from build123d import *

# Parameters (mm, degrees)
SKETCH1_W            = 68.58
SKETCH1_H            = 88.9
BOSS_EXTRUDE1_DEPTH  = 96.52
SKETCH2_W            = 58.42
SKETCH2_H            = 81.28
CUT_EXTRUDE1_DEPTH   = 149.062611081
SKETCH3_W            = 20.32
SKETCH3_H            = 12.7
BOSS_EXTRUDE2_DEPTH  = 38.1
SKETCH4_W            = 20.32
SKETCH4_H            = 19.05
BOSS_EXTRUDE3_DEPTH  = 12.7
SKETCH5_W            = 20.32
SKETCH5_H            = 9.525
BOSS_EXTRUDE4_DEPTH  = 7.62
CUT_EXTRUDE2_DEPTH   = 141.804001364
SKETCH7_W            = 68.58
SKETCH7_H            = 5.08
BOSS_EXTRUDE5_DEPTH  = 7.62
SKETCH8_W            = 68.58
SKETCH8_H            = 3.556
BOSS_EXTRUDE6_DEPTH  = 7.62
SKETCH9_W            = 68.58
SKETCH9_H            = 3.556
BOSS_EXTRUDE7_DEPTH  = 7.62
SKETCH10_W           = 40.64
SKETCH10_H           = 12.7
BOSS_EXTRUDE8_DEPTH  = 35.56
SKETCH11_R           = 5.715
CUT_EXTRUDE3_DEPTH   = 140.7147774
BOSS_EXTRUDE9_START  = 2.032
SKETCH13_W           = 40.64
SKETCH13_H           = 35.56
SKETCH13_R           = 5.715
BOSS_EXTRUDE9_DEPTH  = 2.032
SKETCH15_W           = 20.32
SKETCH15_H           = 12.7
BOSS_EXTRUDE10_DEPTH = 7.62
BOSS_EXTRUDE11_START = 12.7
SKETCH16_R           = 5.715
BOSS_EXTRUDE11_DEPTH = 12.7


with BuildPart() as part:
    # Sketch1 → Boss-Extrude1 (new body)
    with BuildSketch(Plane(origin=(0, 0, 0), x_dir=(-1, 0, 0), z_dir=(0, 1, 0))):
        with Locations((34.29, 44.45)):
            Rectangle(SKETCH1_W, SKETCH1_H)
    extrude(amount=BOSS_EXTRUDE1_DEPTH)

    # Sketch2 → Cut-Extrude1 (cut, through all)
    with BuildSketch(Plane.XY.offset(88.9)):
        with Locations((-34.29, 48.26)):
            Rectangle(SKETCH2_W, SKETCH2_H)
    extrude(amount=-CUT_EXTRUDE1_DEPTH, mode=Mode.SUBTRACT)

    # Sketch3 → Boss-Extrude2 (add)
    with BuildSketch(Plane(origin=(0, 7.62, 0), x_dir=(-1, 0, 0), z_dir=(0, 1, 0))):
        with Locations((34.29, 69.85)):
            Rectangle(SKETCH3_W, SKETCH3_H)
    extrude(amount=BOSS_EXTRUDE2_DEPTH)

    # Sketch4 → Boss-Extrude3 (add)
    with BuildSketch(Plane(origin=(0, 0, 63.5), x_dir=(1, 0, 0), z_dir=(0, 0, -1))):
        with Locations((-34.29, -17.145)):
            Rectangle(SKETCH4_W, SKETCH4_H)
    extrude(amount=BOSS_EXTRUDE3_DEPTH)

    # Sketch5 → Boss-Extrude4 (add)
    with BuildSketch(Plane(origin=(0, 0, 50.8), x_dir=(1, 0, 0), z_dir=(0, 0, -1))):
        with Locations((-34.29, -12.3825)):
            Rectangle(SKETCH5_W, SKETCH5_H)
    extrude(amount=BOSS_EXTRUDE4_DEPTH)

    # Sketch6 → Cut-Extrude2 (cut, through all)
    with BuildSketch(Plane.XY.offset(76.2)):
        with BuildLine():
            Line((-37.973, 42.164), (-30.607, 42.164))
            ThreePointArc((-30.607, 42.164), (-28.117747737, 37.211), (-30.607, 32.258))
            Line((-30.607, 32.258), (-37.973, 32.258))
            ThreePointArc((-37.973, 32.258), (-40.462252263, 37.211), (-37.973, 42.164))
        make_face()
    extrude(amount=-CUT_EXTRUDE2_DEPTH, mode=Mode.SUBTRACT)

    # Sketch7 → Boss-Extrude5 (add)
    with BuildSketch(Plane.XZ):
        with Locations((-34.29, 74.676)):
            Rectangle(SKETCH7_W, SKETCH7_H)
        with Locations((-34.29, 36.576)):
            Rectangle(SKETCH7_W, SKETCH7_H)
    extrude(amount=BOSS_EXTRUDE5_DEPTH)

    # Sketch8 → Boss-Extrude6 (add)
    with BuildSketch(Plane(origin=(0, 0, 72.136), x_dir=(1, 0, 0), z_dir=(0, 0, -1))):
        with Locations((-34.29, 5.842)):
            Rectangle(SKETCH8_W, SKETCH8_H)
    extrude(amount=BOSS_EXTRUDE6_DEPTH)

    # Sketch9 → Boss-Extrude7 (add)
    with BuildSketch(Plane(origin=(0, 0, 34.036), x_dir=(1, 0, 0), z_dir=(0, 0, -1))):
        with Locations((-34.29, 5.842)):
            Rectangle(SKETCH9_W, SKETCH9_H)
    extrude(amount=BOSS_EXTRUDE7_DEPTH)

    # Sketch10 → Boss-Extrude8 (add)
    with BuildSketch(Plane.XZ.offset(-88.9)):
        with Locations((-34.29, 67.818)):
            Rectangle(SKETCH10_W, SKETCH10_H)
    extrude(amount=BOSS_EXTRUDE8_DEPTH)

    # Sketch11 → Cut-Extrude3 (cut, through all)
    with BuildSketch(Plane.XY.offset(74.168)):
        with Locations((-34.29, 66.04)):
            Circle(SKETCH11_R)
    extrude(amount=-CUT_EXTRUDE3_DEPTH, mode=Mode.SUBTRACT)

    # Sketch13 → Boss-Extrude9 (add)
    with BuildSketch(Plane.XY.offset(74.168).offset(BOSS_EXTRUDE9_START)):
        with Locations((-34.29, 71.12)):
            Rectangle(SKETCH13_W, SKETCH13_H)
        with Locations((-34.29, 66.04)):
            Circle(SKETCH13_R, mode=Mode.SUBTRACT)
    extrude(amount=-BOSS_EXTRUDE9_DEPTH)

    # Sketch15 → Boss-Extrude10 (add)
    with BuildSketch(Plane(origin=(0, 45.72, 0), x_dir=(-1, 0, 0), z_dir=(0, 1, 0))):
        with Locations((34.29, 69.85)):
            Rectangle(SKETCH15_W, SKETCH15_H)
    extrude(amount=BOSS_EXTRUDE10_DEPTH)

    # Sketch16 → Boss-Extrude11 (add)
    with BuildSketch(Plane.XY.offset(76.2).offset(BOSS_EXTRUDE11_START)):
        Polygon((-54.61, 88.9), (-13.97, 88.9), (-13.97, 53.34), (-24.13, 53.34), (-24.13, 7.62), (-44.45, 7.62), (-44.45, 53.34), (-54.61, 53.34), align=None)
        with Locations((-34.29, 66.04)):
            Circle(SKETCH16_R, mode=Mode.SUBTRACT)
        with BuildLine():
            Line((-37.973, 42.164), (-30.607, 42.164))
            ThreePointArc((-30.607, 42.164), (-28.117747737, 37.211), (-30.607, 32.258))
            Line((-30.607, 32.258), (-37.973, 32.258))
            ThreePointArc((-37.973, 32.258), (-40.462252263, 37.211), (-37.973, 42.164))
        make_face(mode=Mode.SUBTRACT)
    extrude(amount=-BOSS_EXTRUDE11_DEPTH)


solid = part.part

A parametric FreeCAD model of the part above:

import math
import FreeCAD as App
import Part
import Sketcher
from FreeCAD import Vector
Q = App.Units.Quantity

doc = App.newDocument("Part")
body = doc.addObject("PartDesign::Body", "Body")

# Sketch on XZ plane
sketch1 = body.newObject("Sketcher::SketchObject", "Sketch")
sketch1.AttachmentSupport = (doc.getObject("XZ_Plane"), [""])
sketch1.MapMode = "FlatFace"
sketch1.addGeometry(Part.LineSegment(Vector(0, 89, 0), Vector(0, 0, 0)), False)
sketch1.addGeometry(Part.LineSegment(Vector(0, 0, 0), Vector(-69, 0, 0)), False)
sketch1.addGeometry(Part.LineSegment(Vector(-69, 0, 0), Vector(-69, 89, 0)), False)
sketch1.addGeometry(Part.LineSegment(Vector(-69, 89, 0), Vector(0, 89, 0)), False)
sketch1.addConstraint(Sketcher.Constraint("Coincident", 0, 2, 1, 1))
sketch1.addConstraint(Sketcher.Constraint("Coincident", 1, 2, 2, 1))
sketch1.addConstraint(Sketcher.Constraint("Coincident", 2, 2, 3, 1))
sketch1.addConstraint(Sketcher.Constraint("Coincident", 3, 2, 0, 1))
sketch1.addConstraint(Sketcher.Constraint("Vertical", 0))
sketch1.addConstraint(Sketcher.Constraint("Horizontal", 1))
sketch1.addConstraint(Sketcher.Constraint("Vertical", 2))
sketch1.addConstraint(Sketcher.Constraint("Horizontal", 3))
sketch1.addConstraint(Sketcher.Constraint("Coincident", 0, 2, -1, 1))
sketch1.addConstraint(Sketcher.Constraint("DistanceX", 1, 2, 1, 1, Q("2.7 in")))
sketch1.addConstraint(Sketcher.Constraint("DistanceY", 0, 2, 0, 1, Q("3.5 in")))
pad1 = body.newObject("PartDesign::Pad", "Pad")
pad1.Profile = sketch1
pad1.Length = Q("3.8 in")
pad1.Reversed = True

# Sketch on XY plane
sketch2 = body.newObject("Sketcher::SketchObject", "Sketch001")
sketch2.AttachmentSupport = (doc.getObject("XY_Plane"), [""])
sketch2.MapMode = "FlatFace"
sketch2.AttachmentOffset = App.Placement(Vector(0, 0, 3.5 * 25.4), App.Rotation())
sketch2.addGeometry(Part.LineSegment(Vector(-64, 89, 0), Vector(-64, 8, 0)), False)
sketch2.addGeometry(Part.LineSegment(Vector(-64, 8, 0), Vector(-5, 8, 0)), False)
sketch2.addGeometry(Part.LineSegment(Vector(-5, 8, 0), Vector(-5, 89, 0)), False)
sketch2.addGeometry(Part.LineSegment(Vector(-5, 89, 0), Vector(-64, 89, 0)), False)
sketch2.addConstraint(Sketcher.Constraint("Coincident", 0, 2, 1, 1))
sketch2.addConstraint(Sketcher.Constraint("Coincident", 1, 2, 2, 1))
sketch2.addConstraint(Sketcher.Constraint("Coincident", 2, 2, 3, 1))
sketch2.addConstraint(Sketcher.Constraint("Coincident", 3, 2, 0, 1))
sketch2.addConstraint(Sketcher.Constraint("Vertical", 0))
sketch2.addConstraint(Sketcher.Constraint("Horizontal", 1))
sketch2.addConstraint(Sketcher.Constraint("Vertical", 2))
sketch2.addConstraint(Sketcher.Constraint("Horizontal", 3))
sketch2.addConstraint(Sketcher.Constraint("DistanceX", 1, 1, 1, 2, Q("2.3 in")))
sketch2.addConstraint(Sketcher.Constraint("DistanceY", 0, 2, 0, 1, Q("3.2 in")))
sketch2.addConstraint(Sketcher.Constraint("DistanceX", 0, 2, -1, 1, Q("2.5 in")))
sketch2.addConstraint(Sketcher.Constraint("DistanceY", -1, 1, 0, 2, Q("0.3 in")))
pocket1 = body.newObject("PartDesign::Pocket", "Pocket")
pocket1.Profile = sketch2
pocket1.Type = "ThroughAll"

# Sketch on XZ plane
sketch3 = body.newObject("Sketcher::SketchObject", "Sketch002")
sketch3.AttachmentSupport = (doc.getObject("XZ_Plane"), [""])
sketch3.MapMode = "FlatFace"
sketch3.AttachmentOffset = App.Placement(Vector(0, 0, -0.3 * 25.4), App.Rotation())
sketch3.addGeometry(Part.LineSegment(Vector(-24, 76, 0), Vector(-24, 64, 0)), False)
sketch3.addGeometry(Part.LineSegment(Vector(-24, 64, 0), Vector(-44, 64, 0)), False)
sketch3.addGeometry(Part.LineSegment(Vector(-44, 64, 0), Vector(-44, 76, 0)), False)
sketch3.addGeometry(Part.LineSegment(Vector(-44, 76, 0), Vector(-24, 76, 0)), False)
sketch3.addConstraint(Sketcher.Constraint("Coincident", 0, 2, 1, 1))
sketch3.addConstraint(Sketcher.Constraint("Coincident", 1, 2, 2, 1))
sketch3.addConstraint(Sketcher.Constraint("Coincident", 2, 2, 3, 1))
sketch3.addConstraint(Sketcher.Constraint("Coincident", 3, 2, 0, 1))
sketch3.addConstraint(Sketcher.Constraint("Vertical", 0))
sketch3.addConstraint(Sketcher.Constraint("Horizontal", 1))
sketch3.addConstraint(Sketcher.Constraint("Vertical", 2))
sketch3.addConstraint(Sketcher.Constraint("Horizontal", 3))
sketch3.addConstraint(Sketcher.Constraint("DistanceX", 1, 2, 1, 1, Q("0.8 in")))
sketch3.addConstraint(Sketcher.Constraint("DistanceY", 0, 2, 0, 1, Q("0.5 in")))
sketch3.addConstraint(Sketcher.Constraint("DistanceY", -1, 1, 2, 2, Q("3 in")))
sketch3.addConstraint(Sketcher.Constraint("DistanceX", 0, 2, -1, 1, Q("0.95 in")))
pad2 = body.newObject("PartDesign::Pad", "Pad001")
pad2.Profile = sketch3
pad2.Length = Q("1.5 in")
pad2.Reversed = True

# Sketch on XY plane
sketch4 = body.newObject("Sketcher::SketchObject", "Sketch003")
sketch4.AttachmentSupport = (doc.getObject("XY_Plane"), [""])
sketch4.MapMode = "FlatFace"
sketch4.AttachmentOffset = App.Placement(Vector(0, 0, 2.5 * 25.4), App.Rotation())
sketch4.addGeometry(Part.LineSegment(Vector(-44, 8, 0), Vector(-44, 27, 0)), False)
sketch4.addGeometry(Part.LineSegment(Vector(-44, 27, 0), Vector(-24, 27, 0)), False)
sketch4.addGeometry(Part.LineSegment(Vector(-24, 27, 0), Vector(-24, 8, 0)), False)
sketch4.addGeometry(Part.LineSegment(Vector(-24, 8, 0), Vector(-44, 8, 0)), False)
sketch4.addConstraint(Sketcher.Constraint("Coincident", 0, 2, 1, 1))
sketch4.addConstraint(Sketcher.Constraint("Coincident", 1, 2, 2, 1))
sketch4.addConstraint(Sketcher.Constraint("Coincident", 2, 2, 3, 1))
sketch4.addConstraint(Sketcher.Constraint("Coincident", 3, 2, 0, 1))
sketch4.addConstraint(Sketcher.Constraint("Vertical", 0))
sketch4.addConstraint(Sketcher.Constraint("Horizontal", 1))
sketch4.addConstraint(Sketcher.Constraint("Vertical", 2))
sketch4.addConstraint(Sketcher.Constraint("Horizontal", 3))
sketch4.addConstraint(Sketcher.Constraint("DistanceX", 1, 1, 1, 2, Q("0.8 in")))
sketch4.addConstraint(Sketcher.Constraint("DistanceY", 0, 1, 0, 2, Q("0.75 in")))
sketch4.addConstraint(Sketcher.Constraint("DistanceY", -1, 1, 2, 2, Q("0.3 in")))
sketch4.addConstraint(Sketcher.Constraint("DistanceX", 0, 2, -1, 1, Q("1.75 in")))
pad3 = body.newObject("PartDesign::Pad", "Pad002")
pad3.Profile = sketch4
pad3.Length = Q("0.5 in")
pad3.Reversed = True

# Sketch on XY plane
sketch5 = body.newObject("Sketcher::SketchObject", "Sketch004")
sketch5.AttachmentSupport = (doc.getObject("XY_Plane"), [""])
sketch5.MapMode = "FlatFace"
sketch5.AttachmentOffset = App.Placement(Vector(0, 0, 2 * 25.4), App.Rotation())
sketch5.addGeometry(Part.LineSegment(Vector(-44, 8, 0), Vector(-44, 17, 0)), False)
sketch5.addGeometry(Part.LineSegment(Vector(-44, 17, 0), Vector(-24, 17, 0)), False)
sketch5.addGeometry(Part.LineSegment(Vector(-24, 17, 0), Vector(-24, 8, 0)), False)
sketch5.addGeometry(Part.LineSegment(Vector(-24, 8, 0), Vector(-44, 8, 0)), False)
sketch5.addConstraint(Sketcher.Constraint("Coincident", 0, 2, 1, 1))
sketch5.addConstraint(Sketcher.Constraint("Coincident", 1, 2, 2, 1))
sketch5.addConstraint(Sketcher.Constraint("Coincident", 2, 2, 3, 1))
sketch5.addConstraint(Sketcher.Constraint("Coincident", 3, 2, 0, 1))
sketch5.addConstraint(Sketcher.Constraint("Vertical", 0))
sketch5.addConstraint(Sketcher.Constraint("Horizontal", 1))
sketch5.addConstraint(Sketcher.Constraint("Vertical", 2))
sketch5.addConstraint(Sketcher.Constraint("Horizontal", 3))
sketch5.addConstraint(Sketcher.Constraint("DistanceX", 1, 1, 1, 2, Q("0.8 in")))
sketch5.addConstraint(Sketcher.Constraint("DistanceY", -1, 1, 2, 2, Q("0.3 in")))
sketch5.addConstraint(Sketcher.Constraint("DistanceY", 0, 1, 0, 2, Q("0.375 in")))
sketch5.addConstraint(Sketcher.Constraint("DistanceX", 0, 2, -1, 1, Q("1.75 in")))
pad4 = body.newObject("PartDesign::Pad", "Pad003")
pad4.Profile = sketch5
pad4.Length = Q("0.3 in")
pad4.Reversed = True

# Sketch on XY plane
sketch6 = body.newObject("Sketcher::SketchObject", "Sketch005")
sketch6.AttachmentSupport = (doc.getObject("XY_Plane"), [""])
sketch6.MapMode = "FlatFace"
sketch6.AttachmentOffset = App.Placement(Vector(0, 0, 3 * 25.4), App.Rotation())
sketch6.addGeometry(Part.LineSegment(Vector(-31, 42, 0), Vector(-38, 42, 0)), False)
sketch6.addGeometry(Part.ArcOfCircle(Part.Circle(Vector(-34, 37, 0), Vector(0, 0, 1), 6), math.radians(127), math.radians(233)), False)
sketch6.addGeometry(Part.LineSegment(Vector(-38, 32, 0), Vector(-31, 32, 0)), False)
sketch6.addGeometry(Part.ArcOfCircle(Part.Circle(Vector(-34, 37, 0), Vector(0, 0, 1), 6), math.radians(-53), math.radians(53)), False)
sketch6.addConstraint(Sketcher.Constraint("Coincident", 0, 2, 1, 1))
sketch6.addConstraint(Sketcher.Constraint("Coincident", 1, 2, 2, 1))
sketch6.addConstraint(Sketcher.Constraint("Coincident", 2, 2, 3, 1))
sketch6.addConstraint(Sketcher.Constraint("Coincident", 3, 2, 0, 1))
sketch6.addConstraint(Sketcher.Constraint("Horizontal", 0))
sketch6.addConstraint(Sketcher.Constraint("Horizontal", 2))
sketch6.addConstraint(Sketcher.Constraint("Coincident", 3, 3, 1, 3))
sketch6.addConstraint(Sketcher.Constraint("Equal", 1, 3))
sketch6.addConstraint(Sketcher.Constraint("Vertical", 0, 2, 1, 2))
sketch6.addConstraint(Sketcher.Constraint("DistanceX", 0, 2, 0, 1, Q("0.29 in")))
sketch6.addConstraint(Sketcher.Constraint("DistanceX", 1, 3, -1, 1, Q("1.35 in")))
sketch6.addConstraint(Sketcher.Constraint("DistanceY", -1, 1, 0, 2, Q("1.66 in")))
sketch6.addConstraint(Sketcher.Constraint("DistanceY", -1, 1, 1, 2, Q("1.27 in")))
pocket2 = body.newObject("PartDesign::Pocket", "Pocket001")
pocket2.Profile = sketch6
pocket2.Type = "ThroughAll"

# Sketch on XZ plane
sketch7 = body.newObject("Sketcher::SketchObject", "Sketch006")
sketch7.AttachmentSupport = (doc.getObject("XZ_Plane"), [""])
sketch7.MapMode = "FlatFace"
sketch7.addGeometry(Part.LineSegment(Vector(-69, 77, 0), Vector(-69, 72, 0)), False)
sketch7.addGeometry(Part.LineSegment(Vector(-69, 72, 0), Vector(0, 72, 0)), False)
sketch7.addGeometry(Part.LineSegment(Vector(0, 72, 0), Vector(0, 77, 0)), False)
sketch7.addGeometry(Part.LineSegment(Vector(0, 77, 0), Vector(-69, 77, 0)), False)
sketch7.addGeometry(Part.LineSegment(Vector(-69, 39, 0), Vector(-69, 34, 0)), False)
sketch7.addGeometry(Part.LineSegment(Vector(-69, 34, 0), Vector(0, 34, 0)), False)
sketch7.addGeometry(Part.LineSegment(Vector(0, 34, 0), Vector(0, 39, 0)), False)
sketch7.addGeometry(Part.LineSegment(Vector(0, 39, 0), Vector(-69, 39, 0)), False)
sketch7.addConstraint(Sketcher.Constraint("Coincident", 0, 2, 1, 1))
sketch7.addConstraint(Sketcher.Constraint("Coincident", 1, 2, 2, 1))
sketch7.addConstraint(Sketcher.Constraint("Coincident", 2, 2, 3, 1))
sketch7.addConstraint(Sketcher.Constraint("Coincident", 3, 2, 0, 1))
sketch7.addConstraint(Sketcher.Constraint("Coincident", 4, 2, 5, 1))
sketch7.addConstraint(Sketcher.Constraint("Coincident", 5, 2, 6, 1))
sketch7.addConstraint(Sketcher.Constraint("Coincident", 6, 2, 7, 1))
sketch7.addConstraint(Sketcher.Constraint("Coincident", 7, 2, 4, 1))
sketch7.addConstraint(Sketcher.Constraint("Vertical", 0))
sketch7.addConstraint(Sketcher.Constraint("Horizontal", 1))
sketch7.addConstraint(Sketcher.Constraint("Vertical", 2))
sketch7.addConstraint(Sketcher.Constraint("Horizontal", 3))
sketch7.addConstraint(Sketcher.Constraint("Vertical", 4))
sketch7.addConstraint(Sketcher.Constraint("Horizontal", 5))
sketch7.addConstraint(Sketcher.Constraint("Vertical", 6))
sketch7.addConstraint(Sketcher.Constraint("Horizontal", 7))
sketch7.addConstraint(Sketcher.Constraint("PointOnObject", 1, 2, -2))
sketch7.addConstraint(Sketcher.Constraint("PointOnObject", 5, 2, -2))
sketch7.addConstraint(Sketcher.Constraint("Vertical", 3, 2, 4, 2))
sketch7.addConstraint(Sketcher.Constraint("Equal", 2, 4))
sketch7.addConstraint(Sketcher.Constraint("DistanceX", 1, 1, 1, 2, Q("2.7 in")))
sketch7.addConstraint(Sketcher.Constraint("DistanceY", 0, 2, 0, 1, Q("0.2 in")))
sketch7.addConstraint(Sketcher.Constraint("DistanceY", 4, 2, 0, 2, Q("1.5 in")))
sketch7.addConstraint(Sketcher.Constraint("DistanceY", -1, 1, 0, 2, Q("2.84 in")))
pad5 = body.newObject("PartDesign::Pad", "Pad004")
pad5.Profile = sketch7
pad5.Length = Q("0.3 in")

# Sketch on XY plane
sketch8 = body.newObject("Sketcher::SketchObject", "Sketch007")
sketch8.AttachmentSupport = (doc.getObject("XY_Plane"), [""])
sketch8.MapMode = "FlatFace"
sketch8.AttachmentOffset = App.Placement(Vector(0, 0, 2.84 * 25.4), App.Rotation())
sketch8.addGeometry(Part.LineSegment(Vector(-68.6, -7.6, 0), Vector(-68.6, -4.1, 0)), False)
sketch8.addGeometry(Part.LineSegment(Vector(-68.6, -4.1, 0), Vector(0, -4.1, 0)), False)
sketch8.addGeometry(Part.LineSegment(Vector(0, -4.1, 0), Vector(0, -7.6, 0)), False)
sketch8.addGeometry(Part.LineSegment(Vector(0, -7.6, 0), Vector(-68.6, -7.6, 0)), False)
sketch8.addConstraint(Sketcher.Constraint("Coincident", 0, 2, 1, 1))
sketch8.addConstraint(Sketcher.Constraint("Coincident", 1, 2, 2, 1))
sketch8.addConstraint(Sketcher.Constraint("Coincident", 2, 2, 3, 1))
sketch8.addConstraint(Sketcher.Constraint("Coincident", 3, 2, 0, 1))
sketch8.addConstraint(Sketcher.Constraint("Vertical", 0))
sketch8.addConstraint(Sketcher.Constraint("Horizontal", 1))
sketch8.addConstraint(Sketcher.Constraint("Vertical", 2))
sketch8.addConstraint(Sketcher.Constraint("Horizontal", 3))
sketch8.addConstraint(Sketcher.Constraint("PointOnObject", 1, 2, -2))
sketch8.addConstraint(Sketcher.Constraint("DistanceX", 1, 1, 1, 2, Q("2.7 in")))
sketch8.addConstraint(Sketcher.Constraint("DistanceY", 0, 1, 0, 2, Q("0.14 in")))
sketch8.addConstraint(Sketcher.Constraint("DistanceY", 2, 2, -1, 1, Q("0.3 in")))
pad6 = body.newObject("PartDesign::Pad", "Pad005")
pad6.Profile = sketch8
pad6.Length = Q("0.3 in")
pad6.Reversed = True

# Sketch on XY plane
sketch9 = body.newObject("Sketcher::SketchObject", "Sketch008")
sketch9.AttachmentSupport = (doc.getObject("XY_Plane"), [""])
sketch9.MapMode = "FlatFace"
sketch9.AttachmentOffset = App.Placement(Vector(0, 0, 1.34 * 25.4), App.Rotation())
sketch9.addGeometry(Part.LineSegment(Vector(-68.6, -7.6, 0), Vector(-68.6, -4.1, 0)), False)
sketch9.addGeometry(Part.LineSegment(Vector(-68.6, -4.1, 0), Vector(0, -4.1, 0)), False)
sketch9.addGeometry(Part.LineSegment(Vector(0, -4.1, 0), Vector(0, -7.6, 0)), False)
sketch9.addGeometry(Part.LineSegment(Vector(0, -7.6, 0), Vector(-68.6, -7.6, 0)), False)
sketch9.addConstraint(Sketcher.Constraint("Coincident", 0, 2, 1, 1))
sketch9.addConstraint(Sketcher.Constraint("Coincident", 1, 2, 2, 1))
sketch9.addConstraint(Sketcher.Constraint("Coincident", 2, 2, 3, 1))
sketch9.addConstraint(Sketcher.Constraint("Coincident", 3, 2, 0, 1))
sketch9.addConstraint(Sketcher.Constraint("Vertical", 0))
sketch9.addConstraint(Sketcher.Constraint("Horizontal", 1))
sketch9.addConstraint(Sketcher.Constraint("Vertical", 2))
sketch9.addConstraint(Sketcher.Constraint("Horizontal", 3))
sketch9.addConstraint(Sketcher.Constraint("PointOnObject", 1, 2, -2))
sketch9.addConstraint(Sketcher.Constraint("DistanceX", 1, 1, 1, 2, Q("2.7 in")))
sketch9.addConstraint(Sketcher.Constraint("DistanceY", 0, 1, 0, 2, Q("0.14 in")))
sketch9.addConstraint(Sketcher.Constraint("DistanceY", 2, 2, -1, 1, Q("0.3 in")))
pad7 = body.newObject("PartDesign::Pad", "Pad006")
pad7.Profile = sketch9
pad7.Length = Q("0.3 in")
pad7.Reversed = True

# Sketch on XZ plane
sketch10 = body.newObject("Sketcher::SketchObject", "Sketch009")
sketch10.AttachmentSupport = (doc.getObject("XZ_Plane"), [""])
sketch10.MapMode = "FlatFace"
sketch10.AttachmentOffset = App.Placement(Vector(0, 0, -3.5 * 25.4), App.Rotation())
sketch10.addGeometry(Part.LineSegment(Vector(-55, 74, 0), Vector(-55, 61, 0)), False)
sketch10.addGeometry(Part.LineSegment(Vector(-55, 61, 0), Vector(-14, 61, 0)), False)
sketch10.addGeometry(Part.LineSegment(Vector(-14, 61, 0), Vector(-14, 74, 0)), False)
sketch10.addGeometry(Part.LineSegment(Vector(-14, 74, 0), Vector(-55, 74, 0)), False)
sketch10.addConstraint(Sketcher.Constraint("Coincident", 0, 2, 1, 1))
sketch10.addConstraint(Sketcher.Constraint("Coincident", 1, 2, 2, 1))
sketch10.addConstraint(Sketcher.Constraint("Coincident", 2, 2, 3, 1))
sketch10.addConstraint(Sketcher.Constraint("Coincident", 3, 2, 0, 1))
sketch10.addConstraint(Sketcher.Constraint("Vertical", 0))
sketch10.addConstraint(Sketcher.Constraint("Horizontal", 1))
sketch10.addConstraint(Sketcher.Constraint("Vertical", 2))
sketch10.addConstraint(Sketcher.Constraint("Horizontal", 3))
sketch10.addConstraint(Sketcher.Constraint("DistanceX", 1, 1, 1, 2, Q("1.6 in")))
sketch10.addConstraint(Sketcher.Constraint("DistanceY", 0, 2, 0, 1, Q("0.5 in")))
sketch10.addConstraint(Sketcher.Constraint("DistanceX", 0, 2, -1, 1, Q("2.15 in")))
sketch10.addConstraint(Sketcher.Constraint("DistanceY", -1, 1, 0, 2, Q("2.42 in")))
pad8 = body.newObject("PartDesign::Pad", "Pad007")
pad8.Profile = sketch10
pad8.Length = Q("1.4 in")

# Sketch on XY plane
sketch11 = body.newObject("Sketcher::SketchObject", "Sketch010")
sketch11.AttachmentSupport = (doc.getObject("XY_Plane"), [""])
sketch11.MapMode = "FlatFace"
sketch11.AttachmentOffset = App.Placement(Vector(0, 0, 2.92 * 25.4), App.Rotation())
sketch11.addGeometry(Part.Circle(Vector(-34, 66, 0), Vector(0, 0, 1), 6), False)
sketch11.addConstraint(Sketcher.Constraint("Diameter", 0, Q("0.45 in")))
sketch11.addConstraint(Sketcher.Constraint("DistanceY", -1, 1, 0, 3, Q("2.6 in")))
sketch11.addConstraint(Sketcher.Constraint("DistanceX", 0, 3, -1, 1, Q("1.35 in")))
pocket3 = body.newObject("PartDesign::Pocket", "Pocket002")
pocket3.Profile = sketch11
pocket3.Type = "ThroughAll"

# Sketch on XY plane
sketch12 = body.newObject("Sketcher::SketchObject", "Sketch011")
sketch12.AttachmentSupport = (doc.getObject("XY_Plane"), [""])
sketch12.MapMode = "FlatFace"
sketch12.AttachmentOffset = App.Placement(Vector(0, 0, 3 * 25.4), App.Rotation())
sketch12.addGeometry(Part.LineSegment(Vector(-55, 89, 0), Vector(-55, 53, 0)), False)
sketch12.addGeometry(Part.LineSegment(Vector(-55, 53, 0), Vector(-14, 53, 0)), False)
sketch12.addGeometry(Part.LineSegment(Vector(-14, 53, 0), Vector(-14, 89, 0)), False)
sketch12.addGeometry(Part.LineSegment(Vector(-14, 89, 0), Vector(-55, 89, 0)), False)
sketch12.addGeometry(Part.Circle(Vector(-34, 66, 0), Vector(0, 0, 1), 6), False)
sketch12.addConstraint(Sketcher.Constraint("Coincident", 0, 2, 1, 1))
sketch12.addConstraint(Sketcher.Constraint("Coincident", 1, 2, 2, 1))
sketch12.addConstraint(Sketcher.Constraint("Coincident", 2, 2, 3, 1))
sketch12.addConstraint(Sketcher.Constraint("Coincident", 3, 2, 0, 1))
sketch12.addConstraint(Sketcher.Constraint("Vertical", 0))
sketch12.addConstraint(Sketcher.Constraint("Horizontal", 1))
sketch12.addConstraint(Sketcher.Constraint("Vertical", 2))
sketch12.addConstraint(Sketcher.Constraint("Horizontal", 3))
sketch12.addConstraint(Sketcher.Constraint("Diameter", 4, Q("0.45 in")))
sketch12.addConstraint(Sketcher.Constraint("DistanceX", 1, 1, 1, 2, Q("1.6 in")))
sketch12.addConstraint(Sketcher.Constraint("DistanceY", 0, 2, 0, 1, Q("1.4 in")))
sketch12.addConstraint(Sketcher.Constraint("DistanceY", -1, 1, 4, 3, Q("2.6 in")))
sketch12.addConstraint(Sketcher.Constraint("DistanceY", -1, 1, 0, 2, Q("2.1 in")))
sketch12.addConstraint(Sketcher.Constraint("DistanceX", 0, 2, 4, 3, Q("0.8 in")))
sketch12.addConstraint(Sketcher.Constraint("DistanceX", 4, 3, -1, 1, Q("1.35 in")))
pad9 = body.newObject("PartDesign::Pad", "Pad008")
pad9.Profile = sketch12
pad9.Length = Q("0.08 in")
pad9.Reversed = True

# Sketch on XZ plane
sketch13 = body.newObject("Sketcher::SketchObject", "Sketch012")
sketch13.AttachmentSupport = (doc.getObject("XZ_Plane"), [""])
sketch13.MapMode = "FlatFace"
sketch13.AttachmentOffset = App.Placement(Vector(0, 0, -1.8 * 25.4), App.Rotation())
sketch13.addGeometry(Part.LineSegment(Vector(-24, 76, 0), Vector(-24, 64, 0)), False)
sketch13.addGeometry(Part.LineSegment(Vector(-24, 64, 0), Vector(-44, 64, 0)), False)
sketch13.addGeometry(Part.LineSegment(Vector(-44, 64, 0), Vector(-44, 76, 0)), False)
sketch13.addGeometry(Part.LineSegment(Vector(-44, 76, 0), Vector(-24, 76, 0)), False)
sketch13.addConstraint(Sketcher.Constraint("Coincident", 0, 2, 1, 1))
sketch13.addConstraint(Sketcher.Constraint("Coincident", 1, 2, 2, 1))
sketch13.addConstraint(Sketcher.Constraint("Coincident", 2, 2, 3, 1))
sketch13.addConstraint(Sketcher.Constraint("Coincident", 3, 2, 0, 1))
sketch13.addConstraint(Sketcher.Constraint("Vertical", 0))
sketch13.addConstraint(Sketcher.Constraint("Horizontal", 1))
sketch13.addConstraint(Sketcher.Constraint("Vertical", 2))
sketch13.addConstraint(Sketcher.Constraint("Horizontal", 3))
sketch13.addConstraint(Sketcher.Constraint("DistanceX", 1, 2, 1, 1, Q("0.8 in")))
sketch13.addConstraint(Sketcher.Constraint("DistanceY", 0, 2, 0, 1, Q("0.5 in")))
sketch13.addConstraint(Sketcher.Constraint("DistanceY", -1, 1, 2, 2, Q("3 in")))
sketch13.addConstraint(Sketcher.Constraint("DistanceX", 0, 2, -1, 1, Q("0.95 in")))
pad10 = body.newObject("PartDesign::Pad", "Pad009")
pad10.Profile = sketch13
pad10.Length = Q("0.3 in")
pad10.Reversed = True

# Sketch on XY plane
sketch14 = body.newObject("Sketcher::SketchObject", "Sketch013")
sketch14.AttachmentSupport = (doc.getObject("XY_Plane"), [""])
sketch14.MapMode = "FlatFace"
sketch14.AttachmentOffset = App.Placement(Vector(0, 0, 3.5 * 25.4), App.Rotation())
sketch14.addGeometry(Part.LineSegment(Vector(-14, 89, 0), Vector(-55, 89, 0)), False)
sketch14.addGeometry(Part.LineSegment(Vector(-55, 89, 0), Vector(-55, 53, 0)), False)
sketch14.addGeometry(Part.LineSegment(Vector(-55, 53, 0), Vector(-44, 53, 0)), False)
sketch14.addGeometry(Part.LineSegment(Vector(-44, 53, 0), Vector(-44, 8, 0)), False)
sketch14.addGeometry(Part.LineSegment(Vector(-44, 8, 0), Vector(-24, 8, 0)), False)
sketch14.addGeometry(Part.LineSegment(Vector(-24, 8, 0), Vector(-24, 53, 0)), False)
sketch14.addGeometry(Part.LineSegment(Vector(-24, 53, 0), Vector(-14, 53, 0)), False)
sketch14.addGeometry(Part.LineSegment(Vector(-14, 53, 0), Vector(-14, 89, 0)), False)
sketch14.addGeometry(Part.LineSegment(Vector(-38, 42, 0), Vector(-31, 42, 0)), False)
sketch14.addGeometry(Part.ArcOfCircle(Part.Circle(Vector(-34, 37, 0), Vector(0, 0, 1), 6), math.radians(-53), math.radians(53)), False)
sketch14.addGeometry(Part.LineSegment(Vector(-31, 32, 0), Vector(-38, 32, 0)), False)
sketch14.addGeometry(Part.ArcOfCircle(Part.Circle(Vector(-34, 37, 0), Vector(0, 0, 1), 6), math.radians(127), math.radians(233)), False)
sketch14.addGeometry(Part.Circle(Vector(-34, 66, 0), Vector(0, 0, 1), 6), False)
sketch14.addConstraint(Sketcher.Constraint("Coincident", 0, 2, 1, 1))
sketch14.addConstraint(Sketcher.Constraint("Coincident", 1, 2, 2, 1))
sketch14.addConstraint(Sketcher.Constraint("Coincident", 2, 2, 3, 1))
sketch14.addConstraint(Sketcher.Constraint("Coincident", 3, 2, 4, 1))
sketch14.addConstraint(Sketcher.Constraint("Coincident", 4, 2, 5, 1))
sketch14.addConstraint(Sketcher.Constraint("Coincident", 5, 2, 6, 1))
sketch14.addConstraint(Sketcher.Constraint("Coincident", 6, 2, 7, 1))
sketch14.addConstraint(Sketcher.Constraint("Coincident", 7, 2, 0, 1))
sketch14.addConstraint(Sketcher.Constraint("Coincident", 8, 2, 9, 2))
sketch14.addConstraint(Sketcher.Constraint("Coincident", 9, 1, 10, 1))
sketch14.addConstraint(Sketcher.Constraint("Coincident", 10, 2, 11, 2))
sketch14.addConstraint(Sketcher.Constraint("Coincident", 11, 1, 8, 1))
sketch14.addConstraint(Sketcher.Constraint("Horizontal", 0))
sketch14.addConstraint(Sketcher.Constraint("Vertical", 1))
sketch14.addConstraint(Sketcher.Constraint("Horizontal", 2))
sketch14.addConstraint(Sketcher.Constraint("Vertical", 3))
sketch14.addConstraint(Sketcher.Constraint("Horizontal", 4))
sketch14.addConstraint(Sketcher.Constraint("Vertical", 5))
sketch14.addConstraint(Sketcher.Constraint("Horizontal", 6))
sketch14.addConstraint(Sketcher.Constraint("Vertical", 7))
sketch14.addConstraint(Sketcher.Constraint("Horizontal", 8))
sketch14.addConstraint(Sketcher.Constraint("Horizontal", 10))
sketch14.addConstraint(Sketcher.Constraint("Coincident", 11, 3, 9, 3))
sketch14.addConstraint(Sketcher.Constraint("Equal", 9, 11))
sketch14.addConstraint(Sketcher.Constraint("Horizontal", 2, 2, 5, 2))
sketch14.addConstraint(Sketcher.Constraint("Vertical", 11, 3, 12, 3))
sketch14.addConstraint(Sketcher.Constraint("Vertical", 8, 2, 9, 1))
sketch14.addConstraint(Sketcher.Constraint("Equal", 2, 6))
sketch14.addConstraint(Sketcher.Constraint("Diameter", 12, Q("0.45 in")))
sketch14.addConstraint(Sketcher.Constraint("DistanceX", 0, 2, 0, 1, Q("1.6 in")))
sketch14.addConstraint(Sketcher.Constraint("DistanceX", 2, 1, 2, 2, Q("0.4 in")))
sketch14.addConstraint(Sketcher.Constraint("DistanceY", 1, 2, 1, 1, Q("1.4 in")))
sketch14.addConstraint(Sketcher.Constraint("DistanceY", 3, 2, 3, 1, Q("1.8 in")))
sketch14.addConstraint(Sketcher.Constraint("DistanceX", 8, 1, 8, 2, Q("0.29 in")))
sketch14.addConstraint(Sketcher.Constraint("DistanceY", -1, 1, 12, 3, Q("2.6 in")))
sketch14.addConstraint(Sketcher.Constraint("DistanceY", -1, 1, 0, 2, Q("3.5 in")))
sketch14.addConstraint(Sketcher.Constraint("DistanceX", 0, 2, 12, 3, Q("0.8 in")))
sketch14.addConstraint(Sketcher.Constraint("DistanceX", 9, 3, -1, 1, Q("1.35 in")))
sketch14.addConstraint(Sketcher.Constraint("DistanceY", -1, 1, 8, 2, Q("1.66 in")))
sketch14.addConstraint(Sketcher.Constraint("DistanceY", -1, 1, 9, 1, Q("1.27 in")))
pad11 = body.newObject("PartDesign::Pad", "Pad010")
pad11.Profile = sketch14
pad11.Length = Q("0.5 in")
pad11.Reversed = True

doc.recompute()
